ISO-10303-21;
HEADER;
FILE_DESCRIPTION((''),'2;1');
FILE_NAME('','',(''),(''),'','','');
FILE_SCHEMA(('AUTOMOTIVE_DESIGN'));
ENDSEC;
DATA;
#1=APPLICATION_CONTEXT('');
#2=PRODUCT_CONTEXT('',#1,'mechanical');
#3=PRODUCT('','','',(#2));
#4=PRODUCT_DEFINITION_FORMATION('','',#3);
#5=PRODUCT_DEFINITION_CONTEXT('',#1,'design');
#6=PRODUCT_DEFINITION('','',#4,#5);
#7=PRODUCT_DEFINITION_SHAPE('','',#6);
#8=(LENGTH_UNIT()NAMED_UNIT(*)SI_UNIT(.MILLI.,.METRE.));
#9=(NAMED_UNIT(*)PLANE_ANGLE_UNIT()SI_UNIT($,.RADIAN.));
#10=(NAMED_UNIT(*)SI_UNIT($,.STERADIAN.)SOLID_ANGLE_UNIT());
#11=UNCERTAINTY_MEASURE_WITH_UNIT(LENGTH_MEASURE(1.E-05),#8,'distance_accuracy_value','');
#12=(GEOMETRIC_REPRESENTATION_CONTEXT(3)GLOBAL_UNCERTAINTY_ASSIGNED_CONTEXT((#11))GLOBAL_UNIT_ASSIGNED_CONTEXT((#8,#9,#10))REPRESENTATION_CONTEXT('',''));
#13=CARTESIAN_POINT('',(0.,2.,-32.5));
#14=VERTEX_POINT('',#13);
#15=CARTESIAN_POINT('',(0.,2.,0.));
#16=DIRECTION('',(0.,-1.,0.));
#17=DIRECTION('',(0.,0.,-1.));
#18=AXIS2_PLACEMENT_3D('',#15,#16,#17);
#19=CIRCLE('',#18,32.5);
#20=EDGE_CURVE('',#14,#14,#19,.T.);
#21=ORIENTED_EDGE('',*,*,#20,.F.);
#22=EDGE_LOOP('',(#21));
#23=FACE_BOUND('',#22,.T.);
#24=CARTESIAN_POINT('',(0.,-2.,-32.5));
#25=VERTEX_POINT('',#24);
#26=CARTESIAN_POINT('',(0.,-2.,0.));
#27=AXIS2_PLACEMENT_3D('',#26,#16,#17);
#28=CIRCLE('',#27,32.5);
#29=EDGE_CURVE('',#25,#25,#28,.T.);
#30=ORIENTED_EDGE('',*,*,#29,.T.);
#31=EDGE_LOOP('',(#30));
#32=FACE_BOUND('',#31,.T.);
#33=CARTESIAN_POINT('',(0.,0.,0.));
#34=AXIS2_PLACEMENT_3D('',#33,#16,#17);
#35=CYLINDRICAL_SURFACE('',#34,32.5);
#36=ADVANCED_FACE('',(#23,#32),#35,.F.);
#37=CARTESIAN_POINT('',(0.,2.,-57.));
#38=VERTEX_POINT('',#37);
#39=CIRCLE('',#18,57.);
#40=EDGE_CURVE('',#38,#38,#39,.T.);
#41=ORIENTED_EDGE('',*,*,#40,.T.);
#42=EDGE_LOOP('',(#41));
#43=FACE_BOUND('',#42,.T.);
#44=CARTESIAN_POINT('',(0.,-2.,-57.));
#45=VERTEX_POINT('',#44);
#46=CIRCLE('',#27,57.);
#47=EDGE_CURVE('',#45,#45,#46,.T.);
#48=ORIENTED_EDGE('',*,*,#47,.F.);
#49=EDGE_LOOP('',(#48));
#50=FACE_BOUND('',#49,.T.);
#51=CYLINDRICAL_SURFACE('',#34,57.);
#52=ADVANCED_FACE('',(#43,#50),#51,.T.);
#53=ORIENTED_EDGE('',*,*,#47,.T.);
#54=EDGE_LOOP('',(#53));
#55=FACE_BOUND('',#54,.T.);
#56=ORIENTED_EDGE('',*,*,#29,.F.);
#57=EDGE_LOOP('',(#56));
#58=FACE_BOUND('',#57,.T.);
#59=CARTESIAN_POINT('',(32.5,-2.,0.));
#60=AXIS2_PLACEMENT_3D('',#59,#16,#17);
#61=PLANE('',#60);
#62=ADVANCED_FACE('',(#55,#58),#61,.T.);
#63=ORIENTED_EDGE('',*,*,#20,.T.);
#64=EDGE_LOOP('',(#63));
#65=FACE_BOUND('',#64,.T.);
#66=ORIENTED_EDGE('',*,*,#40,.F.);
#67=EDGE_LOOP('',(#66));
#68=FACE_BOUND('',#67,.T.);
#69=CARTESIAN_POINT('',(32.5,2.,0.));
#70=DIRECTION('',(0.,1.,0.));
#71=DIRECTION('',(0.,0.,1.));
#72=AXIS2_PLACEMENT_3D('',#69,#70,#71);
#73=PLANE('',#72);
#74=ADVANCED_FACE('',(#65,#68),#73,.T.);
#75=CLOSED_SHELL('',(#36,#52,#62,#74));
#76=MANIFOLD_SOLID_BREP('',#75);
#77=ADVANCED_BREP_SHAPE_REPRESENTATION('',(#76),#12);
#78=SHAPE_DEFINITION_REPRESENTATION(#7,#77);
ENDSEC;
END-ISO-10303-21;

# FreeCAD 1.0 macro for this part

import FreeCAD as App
import Part
import Sketcher


def add_polygon(sketch, points):
    """Adds a closed chain of lines whose ends are joined by coincident constraints."""
    first, n = sketch.GeometryCount, len(points)
    for a, b in zip(points, points[1:] + points[:1]):
        sketch.addGeometry(Part.LineSegment(App.Vector(*a, 0), App.Vector(*b, 0)), False)
    for i in range(n):
        sketch.addConstraint(Sketcher.Constraint("Coincident", first + i, 2, first + (i + 1) % n, 1))

doc = App.newDocument("Part")
body = doc.addObject("PartDesign::Body", "Body")

sketch1 = doc.addObject("Sketcher::SketchObject", "Sketch")
body.addObject(sketch1)
sketch1.AttachmentSupport = (doc.XY_Plane, [""])
sketch1.MapMode = "FlatFace"
add_polygon(sketch1, [(32.5, 2), (32.5, -2), (57, -2), (57, 2)])
sketch1.addConstraint(Sketcher.Constraint("Vertical", 0))
sketch1.addConstraint(Sketcher.Constraint("Horizontal", 1))
sketch1.addConstraint(Sketcher.Constraint("Vertical", 2))
sketch1.addConstraint(Sketcher.Constraint("Horizontal", 3))
sketch1.addConstraint(Sketcher.Constraint("DistanceY", 0, 2, 0, 1, 4.0))
sketch1.addConstraint(Sketcher.Constraint("DistanceX", 1, 1, 1, 2, 24.5))
sketch1.addConstraint(Sketcher.Constraint("DistanceY", 0, 2, -1, 1, 2.0))
sketch1.addConstraint(Sketcher.Constraint("DistanceX", -1, 1, 1, 2, 57.0))
revolution = doc.addObject("PartDesign::Revolution", "Revolution")
body.addObject(revolution)
revolution.Profile = sketch1
revolution.ReferenceAxis = (sketch1, ["V_Axis"])
revolution.Angle = 360

doc.recompute()
